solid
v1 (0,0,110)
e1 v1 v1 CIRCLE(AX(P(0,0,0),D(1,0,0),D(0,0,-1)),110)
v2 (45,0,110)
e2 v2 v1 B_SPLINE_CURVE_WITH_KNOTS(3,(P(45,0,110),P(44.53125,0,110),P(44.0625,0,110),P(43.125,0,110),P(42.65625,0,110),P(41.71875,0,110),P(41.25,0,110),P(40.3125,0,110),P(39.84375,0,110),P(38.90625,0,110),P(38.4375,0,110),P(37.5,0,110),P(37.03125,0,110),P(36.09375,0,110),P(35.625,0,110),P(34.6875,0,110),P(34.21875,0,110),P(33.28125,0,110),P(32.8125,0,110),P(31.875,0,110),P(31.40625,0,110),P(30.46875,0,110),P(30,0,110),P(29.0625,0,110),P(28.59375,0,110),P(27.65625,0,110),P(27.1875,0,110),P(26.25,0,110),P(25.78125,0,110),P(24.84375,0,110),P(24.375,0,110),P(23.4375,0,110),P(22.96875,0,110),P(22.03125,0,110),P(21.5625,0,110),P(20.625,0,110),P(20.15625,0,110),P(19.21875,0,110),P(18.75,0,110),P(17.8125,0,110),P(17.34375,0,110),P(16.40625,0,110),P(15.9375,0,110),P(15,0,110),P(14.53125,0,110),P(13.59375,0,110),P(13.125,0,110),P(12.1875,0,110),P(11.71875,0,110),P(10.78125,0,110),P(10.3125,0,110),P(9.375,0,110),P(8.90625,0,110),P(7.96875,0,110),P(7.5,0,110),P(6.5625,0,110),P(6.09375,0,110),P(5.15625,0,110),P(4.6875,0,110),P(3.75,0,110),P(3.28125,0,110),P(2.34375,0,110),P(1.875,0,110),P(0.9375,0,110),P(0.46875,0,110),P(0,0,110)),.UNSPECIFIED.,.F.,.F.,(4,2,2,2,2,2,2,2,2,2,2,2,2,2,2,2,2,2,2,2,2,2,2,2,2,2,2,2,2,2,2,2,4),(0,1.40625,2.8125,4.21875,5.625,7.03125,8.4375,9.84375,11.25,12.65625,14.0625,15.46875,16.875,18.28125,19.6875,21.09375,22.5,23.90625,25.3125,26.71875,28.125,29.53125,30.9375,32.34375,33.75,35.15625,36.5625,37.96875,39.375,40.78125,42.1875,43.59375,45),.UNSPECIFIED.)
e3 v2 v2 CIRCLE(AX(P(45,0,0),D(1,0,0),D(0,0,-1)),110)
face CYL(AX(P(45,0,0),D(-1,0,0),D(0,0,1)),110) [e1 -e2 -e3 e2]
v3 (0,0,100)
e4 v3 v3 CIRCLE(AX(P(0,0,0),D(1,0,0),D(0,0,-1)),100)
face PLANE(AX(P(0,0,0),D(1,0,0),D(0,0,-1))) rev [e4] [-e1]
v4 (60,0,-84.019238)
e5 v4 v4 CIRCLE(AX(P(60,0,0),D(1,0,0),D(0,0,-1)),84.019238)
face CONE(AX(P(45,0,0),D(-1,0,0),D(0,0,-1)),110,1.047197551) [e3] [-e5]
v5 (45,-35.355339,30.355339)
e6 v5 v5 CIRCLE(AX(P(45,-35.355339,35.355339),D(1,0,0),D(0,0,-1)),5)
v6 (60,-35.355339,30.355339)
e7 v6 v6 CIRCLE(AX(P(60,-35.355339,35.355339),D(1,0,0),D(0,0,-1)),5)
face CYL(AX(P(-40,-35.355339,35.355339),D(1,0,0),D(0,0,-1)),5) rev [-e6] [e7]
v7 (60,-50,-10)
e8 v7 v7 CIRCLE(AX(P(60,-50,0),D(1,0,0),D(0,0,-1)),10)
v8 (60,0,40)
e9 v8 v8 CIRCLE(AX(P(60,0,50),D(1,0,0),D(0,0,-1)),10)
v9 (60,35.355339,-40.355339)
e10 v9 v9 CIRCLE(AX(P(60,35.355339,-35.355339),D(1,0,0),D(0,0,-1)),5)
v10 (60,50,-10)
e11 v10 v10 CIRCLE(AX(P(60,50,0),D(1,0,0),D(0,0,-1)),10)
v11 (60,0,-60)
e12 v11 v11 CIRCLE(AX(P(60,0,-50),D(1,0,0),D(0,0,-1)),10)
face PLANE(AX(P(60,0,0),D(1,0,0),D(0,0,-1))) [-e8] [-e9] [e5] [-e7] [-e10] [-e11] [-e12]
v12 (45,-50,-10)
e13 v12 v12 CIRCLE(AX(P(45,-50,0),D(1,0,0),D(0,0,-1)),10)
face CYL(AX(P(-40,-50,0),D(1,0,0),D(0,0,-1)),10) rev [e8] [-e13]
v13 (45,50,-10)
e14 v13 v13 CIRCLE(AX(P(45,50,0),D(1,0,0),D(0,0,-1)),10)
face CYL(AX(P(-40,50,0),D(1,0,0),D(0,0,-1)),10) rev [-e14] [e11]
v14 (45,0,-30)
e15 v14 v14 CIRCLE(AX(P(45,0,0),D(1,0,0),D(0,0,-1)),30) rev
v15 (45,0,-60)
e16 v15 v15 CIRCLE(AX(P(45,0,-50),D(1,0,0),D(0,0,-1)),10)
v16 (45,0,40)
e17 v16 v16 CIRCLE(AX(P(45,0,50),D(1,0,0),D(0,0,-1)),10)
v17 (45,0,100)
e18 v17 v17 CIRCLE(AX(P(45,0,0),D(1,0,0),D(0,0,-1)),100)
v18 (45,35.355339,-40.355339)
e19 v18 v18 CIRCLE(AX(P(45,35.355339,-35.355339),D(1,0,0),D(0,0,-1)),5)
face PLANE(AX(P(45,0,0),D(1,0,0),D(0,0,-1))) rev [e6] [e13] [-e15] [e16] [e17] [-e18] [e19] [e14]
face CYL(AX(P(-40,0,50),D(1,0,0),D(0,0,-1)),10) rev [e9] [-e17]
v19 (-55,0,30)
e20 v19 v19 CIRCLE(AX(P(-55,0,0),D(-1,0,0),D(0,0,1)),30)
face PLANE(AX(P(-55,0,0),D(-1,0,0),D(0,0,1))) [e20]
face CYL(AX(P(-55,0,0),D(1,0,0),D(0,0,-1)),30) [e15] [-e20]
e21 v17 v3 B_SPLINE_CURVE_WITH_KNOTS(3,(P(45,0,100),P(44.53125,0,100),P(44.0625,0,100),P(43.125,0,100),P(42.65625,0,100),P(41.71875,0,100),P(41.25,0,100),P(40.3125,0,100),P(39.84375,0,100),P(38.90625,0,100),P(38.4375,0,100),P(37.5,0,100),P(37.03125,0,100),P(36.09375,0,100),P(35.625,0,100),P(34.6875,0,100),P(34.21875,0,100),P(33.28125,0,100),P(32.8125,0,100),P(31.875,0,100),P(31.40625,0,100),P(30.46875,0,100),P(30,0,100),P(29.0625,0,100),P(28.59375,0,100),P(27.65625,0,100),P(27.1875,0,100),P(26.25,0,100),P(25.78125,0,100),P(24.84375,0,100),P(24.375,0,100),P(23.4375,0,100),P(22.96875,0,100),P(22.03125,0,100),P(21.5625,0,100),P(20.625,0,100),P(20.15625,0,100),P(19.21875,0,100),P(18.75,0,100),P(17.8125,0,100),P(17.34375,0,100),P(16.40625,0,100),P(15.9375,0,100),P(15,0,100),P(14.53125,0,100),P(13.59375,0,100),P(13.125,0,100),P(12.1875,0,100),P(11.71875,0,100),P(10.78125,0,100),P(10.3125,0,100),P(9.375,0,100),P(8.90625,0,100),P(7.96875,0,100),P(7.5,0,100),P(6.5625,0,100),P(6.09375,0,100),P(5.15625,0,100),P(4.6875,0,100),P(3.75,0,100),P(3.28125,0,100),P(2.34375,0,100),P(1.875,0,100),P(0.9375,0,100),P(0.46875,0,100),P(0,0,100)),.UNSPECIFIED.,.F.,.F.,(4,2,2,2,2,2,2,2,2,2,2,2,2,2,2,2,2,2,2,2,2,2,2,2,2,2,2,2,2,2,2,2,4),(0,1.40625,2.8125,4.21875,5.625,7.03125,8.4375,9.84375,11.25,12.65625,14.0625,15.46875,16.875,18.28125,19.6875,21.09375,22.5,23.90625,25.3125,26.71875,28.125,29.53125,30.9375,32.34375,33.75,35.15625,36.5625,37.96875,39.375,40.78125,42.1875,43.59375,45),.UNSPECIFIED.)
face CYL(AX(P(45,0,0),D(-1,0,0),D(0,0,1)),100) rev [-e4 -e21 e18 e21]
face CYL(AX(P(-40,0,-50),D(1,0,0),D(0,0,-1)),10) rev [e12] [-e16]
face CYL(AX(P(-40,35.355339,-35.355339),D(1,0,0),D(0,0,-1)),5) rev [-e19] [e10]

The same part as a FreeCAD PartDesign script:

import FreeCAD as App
import Part
import Sketcher

doc = App.newDocument("Part")
body = doc.addObject("PartDesign::Body", "Body")

# Sketch on YZ plane
sketch1 = body.newObject("Sketcher::SketchObject", "Sketch")
sketch1.AttachmentSupport = (doc.getObject("YZ_Plane"), [""])
sketch1.MapMode = "FlatFace"
sketch1.addGeometry([
    Part.Circle(App.Vector(0, 0, 0), App.Vector(0, 0, 1), 110),
    Part.Circle(App.Vector(0, 0, 0), App.Vector(0, 0, 1), 100),
], False)
sketch1.addConstraint([
    Sketcher.Constraint("Coincident", 0, 3, -1, 1),
    Sketcher.Constraint("Coincident", 1, 3, -1, 1),
    Sketcher.Constraint("Diameter", 0, 220.0),
    Sketcher.Constraint("Diameter", 1, 200.0),
])
pad1 = body.newObject("PartDesign::Pad", "Pad")
pad1.Profile = sketch1
pad1.Length = 45

# Sketch on YZ plane
sketch2 = body.newObject("Sketcher::SketchObject", "Sketch001")
sketch2.AttachmentSupport = (doc.getObject("YZ_Plane"), [""])
sketch2.MapMode = "FlatFace"
sketch2.AttachmentOffset = App.Placement(App.Vector(0, 0, 45), App.Rotation())
sketch2.addGeometry(Part.Circle(App.Vector(0, 0, 0), App.Vector(0, 0, 1), 110), False)
sketch2.addConstraint([
    Sketcher.Constraint("Coincident", 0, 3, -1, 1),
    Sketcher.Constraint("Diameter", 0, 220.0),
])
pad2 = body.newObject("PartDesign::Pad", "Pad001")
pad2.Profile = sketch2
pad2.Length = 15
pad2.TaperAngle = -60

# Sketch on YZ plane
sketch3 = body.newObject("Sketcher::SketchObject", "Sketch002")
sketch3.AttachmentSupport = (doc.getObject("YZ_Plane"), [""])
sketch3.MapMode = "FlatFace"
sketch3.AttachmentOffset = App.Placement(App.Vector(0, 0, 45), App.Rotation())
sketch3.addGeometry(Part.Circle(App.Vector(0, 0, 0), App.Vector(0, 0, 1), 30), False)
sketch3.addConstraint([
    Sketcher.Constraint("Coincident", 0, 3, -1, 1),
    Sketcher.Constraint("Diameter", 0, 60.0),
])
pad3 = body.newObject("PartDesign::Pad", "Pad002")
pad3.Profile = sketch3
pad3.Length = 100
pad3.Reversed = True

# Sketch on YZ plane
sketch4 = body.newObject("Sketcher::SketchObject", "Sketch003")
sketch4.AttachmentSupport = (doc.getObject("YZ_Plane"), [""])
sketch4.MapMode = "FlatFace"
sketch4.AttachmentOffset = App.Placement(App.Vector(0, 0, 60), App.Rotation())
sketch4.addGeometry([
    Part.Circle(App.Vector(50, 0, 0), App.Vector(0, 0, 1), 10),  # 0
    Part.Circle(App.Vector(0, -50, 0), App.Vector(0, 0, 1), 10),  # 1
    Part.Circle(App.Vector(-50, 0, 0), App.Vector(0, 0, 1), 10),  # 2
    Part.Circle(App.Vector(0, 50, 0), App.Vector(0, 0, 1), 10),  # 3
    Part.Circle(App.Vector(35, -35, 0), App.Vector(0, 0, 1), 5),  # 4
    Part.Circle(App.Vector(-35, 35, 0), App.Vector(0, 0, 1), 5),  # 5
], False)
sketch4.addConstraint([
    Sketcher.Constraint("Equal", 0, 1),
    Sketcher.Constraint("Equal", 1, 2),
    Sketcher.Constraint("Equal", 2, 3),
    Sketcher.Constraint("Equal", 4, 5),
    Sketcher.Constraint("Symmetric", 0, 3, 2, 3, -1, 1),
    Sketcher.Constraint("Symmetric", 1, 3, 3, 3, -1, 1),
    Sketcher.Constraint("Symmetric", 4, 3, 5, 3, -1, 1),
    Sketcher.Constraint("PointOnObject", 0, 3, -1),
    Sketcher.Constraint("PointOnObject", 1, 3, -2),
    Sketcher.Constraint("Diameter", 0, 20.0),
    Sketcher.Constraint("Diameter", 4, 10.0),
    Sketcher.Constraint("DistanceX", -1, 1, 0, 3, 50.0),
    Sketcher.Constraint("DistanceY", 1, 3, -1, 1, 50.0),
    Sketcher.Constraint("DistanceX", -1, 1, 4, 3, 35.355339),
    Sketcher.Constraint("DistanceY", 4, 3, -1, 1, 35.355339),
])
pocket1 = body.newObject("PartDesign::Pocket", "Pocket")
pocket1.Profile = sketch4
pocket1.Length = 100

doc.recompute()
